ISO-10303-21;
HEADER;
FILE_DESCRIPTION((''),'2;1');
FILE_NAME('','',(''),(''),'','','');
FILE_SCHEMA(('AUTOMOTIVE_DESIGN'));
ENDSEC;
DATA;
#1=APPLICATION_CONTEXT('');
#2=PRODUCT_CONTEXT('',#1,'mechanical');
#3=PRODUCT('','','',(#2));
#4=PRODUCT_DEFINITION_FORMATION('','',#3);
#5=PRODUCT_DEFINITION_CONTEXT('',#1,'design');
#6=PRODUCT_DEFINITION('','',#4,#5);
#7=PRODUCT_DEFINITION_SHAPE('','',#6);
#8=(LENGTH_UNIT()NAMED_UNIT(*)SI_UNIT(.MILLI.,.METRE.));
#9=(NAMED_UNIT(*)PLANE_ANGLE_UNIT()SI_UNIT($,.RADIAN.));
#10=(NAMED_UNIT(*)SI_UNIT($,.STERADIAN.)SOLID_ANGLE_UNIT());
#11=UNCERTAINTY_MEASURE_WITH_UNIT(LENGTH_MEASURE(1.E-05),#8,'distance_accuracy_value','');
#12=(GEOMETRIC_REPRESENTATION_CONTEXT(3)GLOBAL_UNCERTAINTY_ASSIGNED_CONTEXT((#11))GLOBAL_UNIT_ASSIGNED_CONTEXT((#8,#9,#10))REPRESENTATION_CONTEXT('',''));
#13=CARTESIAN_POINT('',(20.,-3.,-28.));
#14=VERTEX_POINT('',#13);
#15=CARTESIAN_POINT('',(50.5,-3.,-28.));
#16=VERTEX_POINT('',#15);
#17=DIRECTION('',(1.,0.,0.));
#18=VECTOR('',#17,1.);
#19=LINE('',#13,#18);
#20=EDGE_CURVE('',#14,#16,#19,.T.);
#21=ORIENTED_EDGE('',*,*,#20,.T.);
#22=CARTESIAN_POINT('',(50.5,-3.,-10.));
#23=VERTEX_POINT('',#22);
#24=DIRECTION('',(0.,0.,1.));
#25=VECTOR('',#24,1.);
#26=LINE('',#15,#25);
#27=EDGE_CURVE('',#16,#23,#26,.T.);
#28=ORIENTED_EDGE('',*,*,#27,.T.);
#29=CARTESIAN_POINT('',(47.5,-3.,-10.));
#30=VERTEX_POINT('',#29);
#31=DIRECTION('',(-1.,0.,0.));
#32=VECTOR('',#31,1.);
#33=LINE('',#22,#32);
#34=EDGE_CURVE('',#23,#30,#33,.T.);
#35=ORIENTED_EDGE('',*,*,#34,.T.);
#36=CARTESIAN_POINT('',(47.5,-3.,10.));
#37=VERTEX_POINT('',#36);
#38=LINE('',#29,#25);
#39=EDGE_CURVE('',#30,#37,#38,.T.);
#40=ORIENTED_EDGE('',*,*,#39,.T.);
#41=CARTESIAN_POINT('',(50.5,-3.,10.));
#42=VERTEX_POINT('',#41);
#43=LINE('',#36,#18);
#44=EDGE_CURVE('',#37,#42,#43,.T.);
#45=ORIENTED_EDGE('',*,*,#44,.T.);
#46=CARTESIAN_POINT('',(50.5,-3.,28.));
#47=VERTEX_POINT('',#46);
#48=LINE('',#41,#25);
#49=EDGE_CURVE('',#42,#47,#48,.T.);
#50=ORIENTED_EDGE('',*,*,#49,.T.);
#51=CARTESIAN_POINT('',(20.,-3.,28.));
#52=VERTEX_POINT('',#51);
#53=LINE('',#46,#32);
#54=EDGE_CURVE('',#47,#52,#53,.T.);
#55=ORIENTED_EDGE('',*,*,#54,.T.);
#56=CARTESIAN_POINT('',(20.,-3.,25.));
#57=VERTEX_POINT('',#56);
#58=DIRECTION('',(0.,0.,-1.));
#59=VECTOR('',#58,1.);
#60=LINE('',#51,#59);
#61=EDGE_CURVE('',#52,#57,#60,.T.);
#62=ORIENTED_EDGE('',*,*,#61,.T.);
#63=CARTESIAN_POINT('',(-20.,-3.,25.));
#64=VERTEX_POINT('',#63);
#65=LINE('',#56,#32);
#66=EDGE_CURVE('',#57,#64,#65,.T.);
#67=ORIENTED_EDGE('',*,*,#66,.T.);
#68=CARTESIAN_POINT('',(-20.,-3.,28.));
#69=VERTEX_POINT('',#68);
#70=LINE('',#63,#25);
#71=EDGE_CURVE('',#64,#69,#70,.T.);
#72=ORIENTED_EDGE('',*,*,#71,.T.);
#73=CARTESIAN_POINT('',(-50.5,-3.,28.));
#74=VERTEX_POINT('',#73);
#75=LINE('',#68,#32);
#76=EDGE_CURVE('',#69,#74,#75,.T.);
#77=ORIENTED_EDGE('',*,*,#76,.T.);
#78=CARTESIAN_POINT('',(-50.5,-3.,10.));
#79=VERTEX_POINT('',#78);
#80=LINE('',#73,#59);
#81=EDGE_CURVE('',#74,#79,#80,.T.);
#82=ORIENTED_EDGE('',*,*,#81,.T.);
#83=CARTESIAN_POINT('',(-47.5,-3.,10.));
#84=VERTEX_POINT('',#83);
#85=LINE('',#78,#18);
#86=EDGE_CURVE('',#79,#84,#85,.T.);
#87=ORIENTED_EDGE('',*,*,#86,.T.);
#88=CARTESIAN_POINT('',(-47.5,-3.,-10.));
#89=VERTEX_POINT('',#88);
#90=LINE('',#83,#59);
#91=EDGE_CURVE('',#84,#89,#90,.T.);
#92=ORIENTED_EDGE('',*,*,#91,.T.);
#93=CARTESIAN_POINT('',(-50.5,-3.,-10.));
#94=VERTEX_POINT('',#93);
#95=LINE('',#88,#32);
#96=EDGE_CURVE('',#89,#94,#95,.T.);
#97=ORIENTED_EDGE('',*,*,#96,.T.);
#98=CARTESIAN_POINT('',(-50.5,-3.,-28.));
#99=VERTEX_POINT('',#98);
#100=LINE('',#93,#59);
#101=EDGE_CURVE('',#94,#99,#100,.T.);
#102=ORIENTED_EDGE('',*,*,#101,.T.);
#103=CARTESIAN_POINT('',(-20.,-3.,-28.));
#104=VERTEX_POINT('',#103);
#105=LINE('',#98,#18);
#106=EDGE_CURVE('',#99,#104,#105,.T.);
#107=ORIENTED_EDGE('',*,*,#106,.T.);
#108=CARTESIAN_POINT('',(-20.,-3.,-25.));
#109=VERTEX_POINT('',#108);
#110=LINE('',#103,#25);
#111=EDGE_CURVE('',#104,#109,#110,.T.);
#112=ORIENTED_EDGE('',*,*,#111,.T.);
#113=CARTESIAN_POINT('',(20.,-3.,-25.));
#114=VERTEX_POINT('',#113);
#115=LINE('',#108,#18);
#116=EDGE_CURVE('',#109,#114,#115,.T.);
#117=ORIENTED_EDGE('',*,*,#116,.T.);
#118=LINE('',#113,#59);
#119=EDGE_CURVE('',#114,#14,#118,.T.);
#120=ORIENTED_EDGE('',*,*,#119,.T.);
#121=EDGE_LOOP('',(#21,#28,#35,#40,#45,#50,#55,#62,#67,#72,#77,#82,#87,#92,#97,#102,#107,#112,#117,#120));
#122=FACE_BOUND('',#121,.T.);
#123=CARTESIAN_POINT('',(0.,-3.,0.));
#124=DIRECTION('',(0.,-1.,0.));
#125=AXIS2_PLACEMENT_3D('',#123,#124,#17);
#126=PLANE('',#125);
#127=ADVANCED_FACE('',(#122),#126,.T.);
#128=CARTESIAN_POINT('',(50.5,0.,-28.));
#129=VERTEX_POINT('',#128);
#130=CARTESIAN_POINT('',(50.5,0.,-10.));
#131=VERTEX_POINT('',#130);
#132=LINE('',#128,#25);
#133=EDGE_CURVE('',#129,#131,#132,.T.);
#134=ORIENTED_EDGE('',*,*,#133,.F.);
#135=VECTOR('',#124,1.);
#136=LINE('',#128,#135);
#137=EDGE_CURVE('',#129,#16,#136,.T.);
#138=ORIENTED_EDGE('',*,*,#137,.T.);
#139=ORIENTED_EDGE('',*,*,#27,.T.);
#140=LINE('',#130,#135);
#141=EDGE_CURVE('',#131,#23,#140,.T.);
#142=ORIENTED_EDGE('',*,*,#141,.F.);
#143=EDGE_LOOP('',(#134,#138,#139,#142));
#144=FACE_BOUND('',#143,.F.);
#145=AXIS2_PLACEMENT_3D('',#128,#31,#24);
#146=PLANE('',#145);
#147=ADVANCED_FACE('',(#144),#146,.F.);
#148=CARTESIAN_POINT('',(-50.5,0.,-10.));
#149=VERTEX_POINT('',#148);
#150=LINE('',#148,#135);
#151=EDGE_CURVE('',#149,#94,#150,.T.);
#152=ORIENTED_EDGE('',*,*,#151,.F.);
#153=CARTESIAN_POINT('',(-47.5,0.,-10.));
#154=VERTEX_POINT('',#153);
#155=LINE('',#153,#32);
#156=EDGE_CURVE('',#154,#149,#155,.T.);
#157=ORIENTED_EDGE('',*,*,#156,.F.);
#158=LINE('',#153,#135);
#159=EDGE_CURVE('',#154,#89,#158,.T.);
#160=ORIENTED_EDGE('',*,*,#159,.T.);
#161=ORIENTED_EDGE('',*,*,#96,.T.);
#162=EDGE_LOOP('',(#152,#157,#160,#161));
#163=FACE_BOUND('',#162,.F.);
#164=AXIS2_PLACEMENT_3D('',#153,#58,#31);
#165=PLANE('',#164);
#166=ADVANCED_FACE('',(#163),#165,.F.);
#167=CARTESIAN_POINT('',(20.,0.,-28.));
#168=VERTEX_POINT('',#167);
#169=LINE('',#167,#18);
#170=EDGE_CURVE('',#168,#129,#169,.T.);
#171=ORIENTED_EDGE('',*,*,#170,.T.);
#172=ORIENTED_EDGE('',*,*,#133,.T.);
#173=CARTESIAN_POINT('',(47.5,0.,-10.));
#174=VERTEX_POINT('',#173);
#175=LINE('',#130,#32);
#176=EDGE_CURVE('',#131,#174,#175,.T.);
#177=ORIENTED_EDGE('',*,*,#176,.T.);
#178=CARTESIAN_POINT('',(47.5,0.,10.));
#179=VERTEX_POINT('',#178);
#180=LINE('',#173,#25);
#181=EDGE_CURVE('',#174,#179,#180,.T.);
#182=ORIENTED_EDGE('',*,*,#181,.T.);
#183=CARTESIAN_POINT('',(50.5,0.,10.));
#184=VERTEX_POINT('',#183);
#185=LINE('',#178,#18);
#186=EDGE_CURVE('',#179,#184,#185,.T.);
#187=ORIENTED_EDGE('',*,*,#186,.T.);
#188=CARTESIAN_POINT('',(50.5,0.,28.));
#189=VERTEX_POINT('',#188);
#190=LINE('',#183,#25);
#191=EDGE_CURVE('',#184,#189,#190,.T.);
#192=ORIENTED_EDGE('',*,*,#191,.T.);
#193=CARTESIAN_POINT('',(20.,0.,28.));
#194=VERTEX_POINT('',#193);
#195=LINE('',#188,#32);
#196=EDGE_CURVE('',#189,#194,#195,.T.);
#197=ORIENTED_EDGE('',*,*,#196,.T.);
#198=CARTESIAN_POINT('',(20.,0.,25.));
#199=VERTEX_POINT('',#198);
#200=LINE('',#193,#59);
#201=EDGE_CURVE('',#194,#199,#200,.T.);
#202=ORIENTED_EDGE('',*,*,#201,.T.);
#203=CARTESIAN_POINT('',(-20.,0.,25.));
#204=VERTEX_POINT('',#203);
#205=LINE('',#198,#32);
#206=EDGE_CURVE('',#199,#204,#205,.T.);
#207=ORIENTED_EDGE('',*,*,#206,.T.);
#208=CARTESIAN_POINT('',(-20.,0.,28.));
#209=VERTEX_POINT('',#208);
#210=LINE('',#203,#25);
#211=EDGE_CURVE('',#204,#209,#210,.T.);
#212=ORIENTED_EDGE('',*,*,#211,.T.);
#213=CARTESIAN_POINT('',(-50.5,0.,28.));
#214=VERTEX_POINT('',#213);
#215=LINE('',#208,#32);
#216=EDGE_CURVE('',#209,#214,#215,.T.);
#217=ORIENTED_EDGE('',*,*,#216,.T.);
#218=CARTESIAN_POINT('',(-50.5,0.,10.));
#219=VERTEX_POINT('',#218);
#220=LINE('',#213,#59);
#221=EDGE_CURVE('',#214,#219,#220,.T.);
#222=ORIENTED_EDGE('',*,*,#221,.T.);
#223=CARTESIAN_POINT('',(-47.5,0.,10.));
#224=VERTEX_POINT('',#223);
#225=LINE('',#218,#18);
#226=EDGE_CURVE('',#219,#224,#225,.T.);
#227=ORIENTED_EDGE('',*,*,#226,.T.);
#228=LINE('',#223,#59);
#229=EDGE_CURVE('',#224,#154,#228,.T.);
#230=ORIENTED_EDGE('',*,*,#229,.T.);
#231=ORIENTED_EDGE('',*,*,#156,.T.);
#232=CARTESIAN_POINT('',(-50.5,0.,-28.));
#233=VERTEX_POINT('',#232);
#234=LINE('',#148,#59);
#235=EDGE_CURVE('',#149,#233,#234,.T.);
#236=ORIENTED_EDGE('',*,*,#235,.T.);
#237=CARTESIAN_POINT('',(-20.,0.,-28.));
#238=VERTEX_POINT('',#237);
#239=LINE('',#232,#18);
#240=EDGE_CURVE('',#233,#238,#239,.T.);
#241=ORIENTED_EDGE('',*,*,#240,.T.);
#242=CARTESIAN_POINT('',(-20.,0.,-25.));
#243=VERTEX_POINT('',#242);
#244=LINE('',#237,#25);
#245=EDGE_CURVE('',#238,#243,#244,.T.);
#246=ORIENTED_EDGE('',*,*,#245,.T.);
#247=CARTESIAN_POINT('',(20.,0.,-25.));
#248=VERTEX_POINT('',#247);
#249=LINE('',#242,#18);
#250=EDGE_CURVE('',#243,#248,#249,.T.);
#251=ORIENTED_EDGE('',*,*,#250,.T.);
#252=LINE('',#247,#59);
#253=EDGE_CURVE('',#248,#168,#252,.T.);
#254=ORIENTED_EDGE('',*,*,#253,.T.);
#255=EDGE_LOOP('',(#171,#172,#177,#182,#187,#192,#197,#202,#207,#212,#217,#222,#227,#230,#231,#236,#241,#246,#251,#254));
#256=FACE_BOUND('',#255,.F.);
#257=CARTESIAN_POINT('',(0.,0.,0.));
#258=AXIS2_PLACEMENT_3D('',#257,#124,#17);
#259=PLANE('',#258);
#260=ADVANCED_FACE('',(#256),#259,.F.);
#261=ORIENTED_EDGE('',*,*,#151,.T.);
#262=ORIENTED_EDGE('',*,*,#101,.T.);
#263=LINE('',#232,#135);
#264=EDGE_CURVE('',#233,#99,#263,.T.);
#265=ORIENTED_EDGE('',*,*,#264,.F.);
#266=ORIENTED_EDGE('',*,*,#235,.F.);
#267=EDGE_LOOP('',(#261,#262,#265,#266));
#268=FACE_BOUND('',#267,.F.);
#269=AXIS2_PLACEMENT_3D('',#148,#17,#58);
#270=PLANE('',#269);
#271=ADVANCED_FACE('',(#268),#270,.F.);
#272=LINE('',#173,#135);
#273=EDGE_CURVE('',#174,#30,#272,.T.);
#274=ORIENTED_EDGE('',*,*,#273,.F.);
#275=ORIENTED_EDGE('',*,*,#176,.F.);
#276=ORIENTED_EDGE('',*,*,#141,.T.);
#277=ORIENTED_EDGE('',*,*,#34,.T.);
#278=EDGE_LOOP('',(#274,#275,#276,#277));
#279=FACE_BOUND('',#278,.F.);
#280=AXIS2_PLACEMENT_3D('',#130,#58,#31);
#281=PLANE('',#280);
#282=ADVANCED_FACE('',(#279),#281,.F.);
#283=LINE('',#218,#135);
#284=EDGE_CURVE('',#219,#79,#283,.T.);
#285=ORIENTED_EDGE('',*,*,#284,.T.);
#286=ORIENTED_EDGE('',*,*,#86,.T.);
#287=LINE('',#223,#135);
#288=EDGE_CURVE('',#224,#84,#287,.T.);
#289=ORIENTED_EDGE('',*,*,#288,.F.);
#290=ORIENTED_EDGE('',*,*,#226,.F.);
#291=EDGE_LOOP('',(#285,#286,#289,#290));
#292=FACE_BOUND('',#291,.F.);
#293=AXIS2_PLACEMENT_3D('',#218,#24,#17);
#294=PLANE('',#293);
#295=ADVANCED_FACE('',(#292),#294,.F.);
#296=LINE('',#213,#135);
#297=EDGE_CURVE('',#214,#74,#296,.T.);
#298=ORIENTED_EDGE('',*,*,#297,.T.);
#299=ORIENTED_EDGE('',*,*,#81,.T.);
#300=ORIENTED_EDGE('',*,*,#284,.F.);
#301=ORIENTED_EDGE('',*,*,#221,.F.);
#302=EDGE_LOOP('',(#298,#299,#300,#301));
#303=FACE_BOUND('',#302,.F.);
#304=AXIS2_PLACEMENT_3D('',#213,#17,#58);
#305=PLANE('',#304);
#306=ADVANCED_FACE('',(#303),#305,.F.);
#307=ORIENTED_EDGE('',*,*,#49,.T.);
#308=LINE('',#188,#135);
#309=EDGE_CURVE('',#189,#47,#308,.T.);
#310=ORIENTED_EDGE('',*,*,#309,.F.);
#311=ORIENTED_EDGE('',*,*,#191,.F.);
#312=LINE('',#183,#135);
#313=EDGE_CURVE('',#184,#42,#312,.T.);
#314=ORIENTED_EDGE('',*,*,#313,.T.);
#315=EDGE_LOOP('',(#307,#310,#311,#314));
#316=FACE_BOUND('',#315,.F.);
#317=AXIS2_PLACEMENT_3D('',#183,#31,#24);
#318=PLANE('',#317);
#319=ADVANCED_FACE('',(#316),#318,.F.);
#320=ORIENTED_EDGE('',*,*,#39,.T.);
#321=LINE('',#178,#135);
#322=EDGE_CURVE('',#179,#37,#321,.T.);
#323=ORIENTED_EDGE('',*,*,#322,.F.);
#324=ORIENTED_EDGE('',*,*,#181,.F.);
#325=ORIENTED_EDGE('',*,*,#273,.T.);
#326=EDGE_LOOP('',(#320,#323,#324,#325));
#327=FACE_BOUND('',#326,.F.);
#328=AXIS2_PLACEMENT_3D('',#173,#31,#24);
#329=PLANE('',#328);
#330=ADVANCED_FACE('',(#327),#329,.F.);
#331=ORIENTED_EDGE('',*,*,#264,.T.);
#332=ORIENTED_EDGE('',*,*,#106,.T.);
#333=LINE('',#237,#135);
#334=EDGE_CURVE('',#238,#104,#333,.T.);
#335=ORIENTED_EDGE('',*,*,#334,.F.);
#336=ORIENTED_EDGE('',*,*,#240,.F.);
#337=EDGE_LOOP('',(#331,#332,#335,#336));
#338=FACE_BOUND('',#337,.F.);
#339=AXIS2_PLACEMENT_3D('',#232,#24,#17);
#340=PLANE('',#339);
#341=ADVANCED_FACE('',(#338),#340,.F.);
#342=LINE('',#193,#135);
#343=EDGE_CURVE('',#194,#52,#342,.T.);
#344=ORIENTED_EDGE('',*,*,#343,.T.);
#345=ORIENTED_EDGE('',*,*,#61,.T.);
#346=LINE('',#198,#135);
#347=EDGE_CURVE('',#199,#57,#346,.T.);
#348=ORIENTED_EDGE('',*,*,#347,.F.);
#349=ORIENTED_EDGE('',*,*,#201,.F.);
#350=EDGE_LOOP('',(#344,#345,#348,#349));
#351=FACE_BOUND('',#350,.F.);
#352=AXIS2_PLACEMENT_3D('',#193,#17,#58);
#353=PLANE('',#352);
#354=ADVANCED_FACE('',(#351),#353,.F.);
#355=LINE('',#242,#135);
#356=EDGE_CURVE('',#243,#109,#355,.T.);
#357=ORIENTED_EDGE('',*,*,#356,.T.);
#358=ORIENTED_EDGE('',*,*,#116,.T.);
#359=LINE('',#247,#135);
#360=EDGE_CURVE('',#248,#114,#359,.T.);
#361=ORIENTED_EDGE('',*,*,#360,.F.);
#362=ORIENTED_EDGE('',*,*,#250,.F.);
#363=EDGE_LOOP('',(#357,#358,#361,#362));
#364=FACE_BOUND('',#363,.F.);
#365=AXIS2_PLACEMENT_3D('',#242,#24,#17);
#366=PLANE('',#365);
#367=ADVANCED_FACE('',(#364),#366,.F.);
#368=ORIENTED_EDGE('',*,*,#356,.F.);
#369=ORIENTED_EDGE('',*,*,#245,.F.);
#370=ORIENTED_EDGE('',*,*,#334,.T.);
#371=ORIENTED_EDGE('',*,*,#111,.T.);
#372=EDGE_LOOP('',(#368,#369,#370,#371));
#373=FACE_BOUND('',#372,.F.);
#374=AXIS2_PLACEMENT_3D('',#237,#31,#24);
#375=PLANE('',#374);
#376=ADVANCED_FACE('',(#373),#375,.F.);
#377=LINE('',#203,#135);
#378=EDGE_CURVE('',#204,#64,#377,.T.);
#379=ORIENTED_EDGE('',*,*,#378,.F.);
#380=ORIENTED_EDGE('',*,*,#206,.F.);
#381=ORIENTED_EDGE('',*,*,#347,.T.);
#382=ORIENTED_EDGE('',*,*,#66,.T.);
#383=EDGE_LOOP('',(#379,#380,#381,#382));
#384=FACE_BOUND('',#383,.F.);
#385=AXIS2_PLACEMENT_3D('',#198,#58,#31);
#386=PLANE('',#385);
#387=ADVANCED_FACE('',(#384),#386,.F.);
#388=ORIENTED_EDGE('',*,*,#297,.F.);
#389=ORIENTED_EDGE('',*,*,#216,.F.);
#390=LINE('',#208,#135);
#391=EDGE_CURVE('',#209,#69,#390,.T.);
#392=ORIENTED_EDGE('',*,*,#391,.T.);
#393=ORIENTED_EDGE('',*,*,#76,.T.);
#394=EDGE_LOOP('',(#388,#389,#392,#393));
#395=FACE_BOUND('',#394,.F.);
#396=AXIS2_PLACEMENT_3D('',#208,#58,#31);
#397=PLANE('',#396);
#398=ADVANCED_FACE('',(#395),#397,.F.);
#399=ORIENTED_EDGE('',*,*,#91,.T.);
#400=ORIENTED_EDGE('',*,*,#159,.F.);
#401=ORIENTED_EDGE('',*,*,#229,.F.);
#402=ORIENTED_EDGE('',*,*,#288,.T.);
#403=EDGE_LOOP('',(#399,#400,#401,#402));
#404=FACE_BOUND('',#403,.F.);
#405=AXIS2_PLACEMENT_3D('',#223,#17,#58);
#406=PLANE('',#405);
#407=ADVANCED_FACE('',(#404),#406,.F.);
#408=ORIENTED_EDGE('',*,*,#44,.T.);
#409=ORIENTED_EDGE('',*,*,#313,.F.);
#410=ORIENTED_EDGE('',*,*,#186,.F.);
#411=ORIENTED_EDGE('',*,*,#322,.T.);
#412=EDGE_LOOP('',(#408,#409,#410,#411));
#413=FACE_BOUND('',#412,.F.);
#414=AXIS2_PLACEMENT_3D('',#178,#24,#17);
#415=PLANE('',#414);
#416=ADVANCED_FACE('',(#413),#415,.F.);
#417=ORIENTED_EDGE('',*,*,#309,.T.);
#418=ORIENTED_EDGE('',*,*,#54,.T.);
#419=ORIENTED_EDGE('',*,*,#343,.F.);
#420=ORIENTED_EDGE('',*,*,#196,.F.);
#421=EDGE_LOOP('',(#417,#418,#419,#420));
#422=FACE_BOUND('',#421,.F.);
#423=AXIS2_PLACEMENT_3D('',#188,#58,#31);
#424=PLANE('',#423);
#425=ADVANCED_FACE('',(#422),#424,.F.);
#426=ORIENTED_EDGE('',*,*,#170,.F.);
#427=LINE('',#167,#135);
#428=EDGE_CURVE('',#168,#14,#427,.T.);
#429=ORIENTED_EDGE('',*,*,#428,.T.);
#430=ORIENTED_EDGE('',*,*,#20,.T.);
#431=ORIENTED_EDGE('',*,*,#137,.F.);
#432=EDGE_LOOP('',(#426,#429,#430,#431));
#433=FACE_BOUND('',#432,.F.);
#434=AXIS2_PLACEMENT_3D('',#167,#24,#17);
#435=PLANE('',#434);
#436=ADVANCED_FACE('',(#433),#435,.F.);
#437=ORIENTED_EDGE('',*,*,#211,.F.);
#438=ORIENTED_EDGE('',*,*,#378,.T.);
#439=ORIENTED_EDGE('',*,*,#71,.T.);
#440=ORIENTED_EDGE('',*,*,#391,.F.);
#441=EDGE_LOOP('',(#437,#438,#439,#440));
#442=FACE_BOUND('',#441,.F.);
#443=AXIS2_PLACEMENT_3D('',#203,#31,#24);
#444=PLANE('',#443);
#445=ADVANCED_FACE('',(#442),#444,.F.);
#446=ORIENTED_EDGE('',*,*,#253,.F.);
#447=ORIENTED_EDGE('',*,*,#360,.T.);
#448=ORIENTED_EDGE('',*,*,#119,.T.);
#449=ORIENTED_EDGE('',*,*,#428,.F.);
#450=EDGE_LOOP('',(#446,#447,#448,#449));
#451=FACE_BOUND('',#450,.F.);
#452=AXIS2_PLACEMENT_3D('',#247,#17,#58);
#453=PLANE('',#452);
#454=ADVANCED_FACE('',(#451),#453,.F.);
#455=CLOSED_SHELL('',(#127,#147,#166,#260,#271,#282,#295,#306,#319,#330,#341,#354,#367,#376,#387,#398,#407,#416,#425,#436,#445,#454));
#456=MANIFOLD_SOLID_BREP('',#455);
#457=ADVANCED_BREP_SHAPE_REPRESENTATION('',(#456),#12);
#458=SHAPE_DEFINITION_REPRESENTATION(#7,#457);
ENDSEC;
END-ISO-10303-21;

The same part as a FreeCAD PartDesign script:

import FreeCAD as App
import Part
import Sketcher
from FreeCAD import Vector

doc = App.newDocument("Part")
body = doc.addObject("PartDesign::Body", "Body")

sketch1 = body.newObject("Sketcher::SketchObject", "Sketch")
sketch1.AttachmentSupport = (doc.getObject("XZ_Plane"), [""])
sketch1.MapMode = "FlatFace"
sketch1.addGeometry(Part.LineSegment(Vector(20, 25, 0), Vector(-20, 25, 0)), False)
sketch1.addGeometry(Part.LineSegment(Vector(-20, 25, 0), Vector(-20, 28, 0)), False)
sketch1.addGeometry(Part.LineSegment(Vector(-20, 28, 0), Vector(-50.5, 28, 0)), False)
sketch1.addGeometry(Part.LineSegment(Vector(-50.5, 28, 0), Vector(-50.5, 10, 0)), False)
sketch1.addGeometry(Part.LineSegment(Vector(-50.5, 10, 0), Vector(-47.5, 10, 0)), False)
sketch1.addGeometry(Part.LineSegment(Vector(-47.5, 10, 0), Vector(-47.5, -10, 0)), False)
sketch1.addGeometry(Part.LineSegment(Vector(-47.5, -10, 0), Vector(-50.5, -10, 0)), False)
sketch1.addGeometry(Part.LineSegment(Vector(-50.5, -10, 0), Vector(-50.5, -28, 0)), False)
sketch1.addGeometry(Part.LineSegment(Vector(-50.5, -28, 0), Vector(-20, -28, 0)), False)
sketch1.addGeometry(Part.LineSegment(Vector(-20, -28, 0), Vector(-20, -25, 0)), False)
sketch1.addGeometry(Part.LineSegment(Vector(-20, -25, 0), Vector(20, -25, 0)), False)
sketch1.addGeometry(Part.LineSegment(Vector(20, -25, 0), Vector(20, -28, 0)), False)
sketch1.addGeometry(Part.LineSegment(Vector(20, -28, 0), Vector(50.5, -28, 0)), False)
sketch1.addGeometry(Part.LineSegment(Vector(50.5, -28, 0), Vector(50.5, -10, 0)), False)
sketch1.addGeometry(Part.LineSegment(Vector(50.5, -10, 0), Vector(47.5, -10, 0)), False)
sketch1.addGeometry(Part.LineSegment(Vector(47.5, -10, 0), Vector(47.5, 10, 0)), False)
sketch1.addGeometry(Part.LineSegment(Vector(47.5, 10, 0), Vector(50.5, 10, 0)), False)
sketch1.addGeometry(Part.LineSegment(Vector(50.5, 10, 0), Vector(50.5, 28, 0)), False)
sketch1.addGeometry(Part.LineSegment(Vector(50.5, 28, 0), Vector(20, 28, 0)), False)
sketch1.addGeometry(Part.LineSegment(Vector(20, 28, 0), Vector(20, 25, 0)), False)
sketch1.addConstraint(Sketcher.Constraint("Coincident", 0, 2, 1, 1))
sketch1.addConstraint(Sketcher.Constraint("Coincident", 1, 2, 2, 1))
sketch1.addConstraint(Sketcher.Constraint("Coincident", 2, 2, 3, 1))
sketch1.addConstraint(Sketcher.Constraint("Coincident", 3, 2, 4, 1))
sketch1.addConstraint(Sketcher.Constraint("Coincident", 4, 2, 5, 1))
sketch1.addConstraint(Sketcher.Constraint("Coincident", 5, 2, 6, 1))
sketch1.addConstraint(Sketcher.Constraint("Coincident", 6, 2, 7, 1))
sketch1.addConstraint(Sketcher.Constraint("Coincident", 7, 2, 8, 1))
sketch1.addConstraint(Sketcher.Constraint("Coincident", 8, 2, 9, 1))
sketch1.addConstraint(Sketcher.Constraint("Coincident", 9, 2, 10, 1))
sketch1.addConstraint(Sketcher.Constraint("Coincident", 10, 2, 11, 1))
sketch1.addConstraint(Sketcher.Constraint("Coincident", 11, 2, 12, 1))
sketch1.addConstraint(Sketcher.Constraint("Coincident", 12, 2, 13, 1))
sketch1.addConstraint(Sketcher.Constraint("Coincident", 13, 2, 14, 1))
sketch1.addConstraint(Sketcher.Constraint("Coincident", 14, 2, 15, 1))
sketch1.addConstraint(Sketcher.Constraint("Coincident", 15, 2, 16, 1))
sketch1.addConstraint(Sketcher.Constraint("Coincident", 16, 2, 17, 1))
sketch1.addConstraint(Sketcher.Constraint("Coincident", 17, 2, 18, 1))
sketch1.addConstraint(Sketcher.Constraint("Coincident", 18, 2, 19, 1))
sketch1.addConstraint(Sketcher.Constraint("Coincident", 19, 2, 0, 1))
sketch1.addConstraint(Sketcher.Constraint("Horizontal", 0))
sketch1.addConstraint(Sketcher.Constraint("Vertical", 1))
sketch1.addConstraint(Sketcher.Constraint("Horizontal", 2))
sketch1.addConstraint(Sketcher.Constraint("Vertical", 3))
sketch1.addConstraint(Sketcher.Constraint("Horizontal", 4))
sketch1.addConstraint(Sketcher.Constraint("Vertical", 5))
sketch1.addConstraint(Sketcher.Constraint("Horizontal", 6))
sketch1.addConstraint(Sketcher.Constraint("Vertical", 7))
sketch1.addConstraint(Sketcher.Constraint("Horizontal", 8))
sketch1.addConstraint(Sketcher.Constraint("Vertical", 9))
sketch1.addConstraint(Sketcher.Constraint("Horizontal", 10))
sketch1.addConstraint(Sketcher.Constraint("Vertical", 11))
sketch1.addConstraint(Sketcher.Constraint("Horizontal", 12))
sketch1.addConstraint(Sketcher.Constraint("Vertical", 13))
sketch1.addConstraint(Sketcher.Constraint("Horizontal", 14))
sketch1.addConstraint(Sketcher.Constraint("Vertical", 15))
sketch1.addConstraint(Sketcher.Constraint("Horizontal", 16))
sketch1.addConstraint(Sketcher.Constraint("Vertical", 17))
sketch1.addConstraint(Sketcher.Constraint("Horizontal", 18))
sketch1.addConstraint(Sketcher.Constraint("Vertical", 19))
sketch1.addConstraint(Sketcher.Constraint("Symmetric", 0, 2, 10, 2, -1, 1))
sketch1.addConstraint(Sketcher.Constraint("Symmetric", 2, 2, 12, 2, -1, 1))
sketch1.addConstraint(Sketcher.Constraint("Symmetric", 4, 2, 14, 2, -1, 1))
sketch1.addConstraint(Sketcher.Constraint("Symmetric", 6, 2, 16, 2, -1, 1))
sketch1.addConstraint(Sketcher.Constraint("Symmetric", 8, 2, 18, 2, -1, 1))
sketch1.addConstraint(Sketcher.Constraint("Symmetric", 8, 2, 11, 2, -2))
sketch1.addConstraint(Sketcher.Constraint("Symmetric", 6, 2, 13, 2, -2))
sketch1.addConstraint(Sketcher.Constraint("Equal", 16, 1))
sketch1.addConstraint(Sketcher.Constraint("DistanceX", 0, 2, 0, 1, 40.0))
sketch1.addConstraint(Sketcher.Constraint("DistanceX", 4, 1, 4, 2, 3.0))
sketch1.addConstraint(Sketcher.Constraint("DistanceY", 3, 2, 3, 1, 18.0))
sketch1.addConstraint(Sketcher.Constraint("DistanceY", 5, 2, 5, 1, 20.0))
sketch1.addConstraint(Sketcher.Constraint("DistanceX", 2, 2, 2, 1, 30.5))
pad1 = body.newObject("PartDesign::Pad", "Pad")
pad1.Profile = sketch1
pad1.Length = 3

doc.recompute()
